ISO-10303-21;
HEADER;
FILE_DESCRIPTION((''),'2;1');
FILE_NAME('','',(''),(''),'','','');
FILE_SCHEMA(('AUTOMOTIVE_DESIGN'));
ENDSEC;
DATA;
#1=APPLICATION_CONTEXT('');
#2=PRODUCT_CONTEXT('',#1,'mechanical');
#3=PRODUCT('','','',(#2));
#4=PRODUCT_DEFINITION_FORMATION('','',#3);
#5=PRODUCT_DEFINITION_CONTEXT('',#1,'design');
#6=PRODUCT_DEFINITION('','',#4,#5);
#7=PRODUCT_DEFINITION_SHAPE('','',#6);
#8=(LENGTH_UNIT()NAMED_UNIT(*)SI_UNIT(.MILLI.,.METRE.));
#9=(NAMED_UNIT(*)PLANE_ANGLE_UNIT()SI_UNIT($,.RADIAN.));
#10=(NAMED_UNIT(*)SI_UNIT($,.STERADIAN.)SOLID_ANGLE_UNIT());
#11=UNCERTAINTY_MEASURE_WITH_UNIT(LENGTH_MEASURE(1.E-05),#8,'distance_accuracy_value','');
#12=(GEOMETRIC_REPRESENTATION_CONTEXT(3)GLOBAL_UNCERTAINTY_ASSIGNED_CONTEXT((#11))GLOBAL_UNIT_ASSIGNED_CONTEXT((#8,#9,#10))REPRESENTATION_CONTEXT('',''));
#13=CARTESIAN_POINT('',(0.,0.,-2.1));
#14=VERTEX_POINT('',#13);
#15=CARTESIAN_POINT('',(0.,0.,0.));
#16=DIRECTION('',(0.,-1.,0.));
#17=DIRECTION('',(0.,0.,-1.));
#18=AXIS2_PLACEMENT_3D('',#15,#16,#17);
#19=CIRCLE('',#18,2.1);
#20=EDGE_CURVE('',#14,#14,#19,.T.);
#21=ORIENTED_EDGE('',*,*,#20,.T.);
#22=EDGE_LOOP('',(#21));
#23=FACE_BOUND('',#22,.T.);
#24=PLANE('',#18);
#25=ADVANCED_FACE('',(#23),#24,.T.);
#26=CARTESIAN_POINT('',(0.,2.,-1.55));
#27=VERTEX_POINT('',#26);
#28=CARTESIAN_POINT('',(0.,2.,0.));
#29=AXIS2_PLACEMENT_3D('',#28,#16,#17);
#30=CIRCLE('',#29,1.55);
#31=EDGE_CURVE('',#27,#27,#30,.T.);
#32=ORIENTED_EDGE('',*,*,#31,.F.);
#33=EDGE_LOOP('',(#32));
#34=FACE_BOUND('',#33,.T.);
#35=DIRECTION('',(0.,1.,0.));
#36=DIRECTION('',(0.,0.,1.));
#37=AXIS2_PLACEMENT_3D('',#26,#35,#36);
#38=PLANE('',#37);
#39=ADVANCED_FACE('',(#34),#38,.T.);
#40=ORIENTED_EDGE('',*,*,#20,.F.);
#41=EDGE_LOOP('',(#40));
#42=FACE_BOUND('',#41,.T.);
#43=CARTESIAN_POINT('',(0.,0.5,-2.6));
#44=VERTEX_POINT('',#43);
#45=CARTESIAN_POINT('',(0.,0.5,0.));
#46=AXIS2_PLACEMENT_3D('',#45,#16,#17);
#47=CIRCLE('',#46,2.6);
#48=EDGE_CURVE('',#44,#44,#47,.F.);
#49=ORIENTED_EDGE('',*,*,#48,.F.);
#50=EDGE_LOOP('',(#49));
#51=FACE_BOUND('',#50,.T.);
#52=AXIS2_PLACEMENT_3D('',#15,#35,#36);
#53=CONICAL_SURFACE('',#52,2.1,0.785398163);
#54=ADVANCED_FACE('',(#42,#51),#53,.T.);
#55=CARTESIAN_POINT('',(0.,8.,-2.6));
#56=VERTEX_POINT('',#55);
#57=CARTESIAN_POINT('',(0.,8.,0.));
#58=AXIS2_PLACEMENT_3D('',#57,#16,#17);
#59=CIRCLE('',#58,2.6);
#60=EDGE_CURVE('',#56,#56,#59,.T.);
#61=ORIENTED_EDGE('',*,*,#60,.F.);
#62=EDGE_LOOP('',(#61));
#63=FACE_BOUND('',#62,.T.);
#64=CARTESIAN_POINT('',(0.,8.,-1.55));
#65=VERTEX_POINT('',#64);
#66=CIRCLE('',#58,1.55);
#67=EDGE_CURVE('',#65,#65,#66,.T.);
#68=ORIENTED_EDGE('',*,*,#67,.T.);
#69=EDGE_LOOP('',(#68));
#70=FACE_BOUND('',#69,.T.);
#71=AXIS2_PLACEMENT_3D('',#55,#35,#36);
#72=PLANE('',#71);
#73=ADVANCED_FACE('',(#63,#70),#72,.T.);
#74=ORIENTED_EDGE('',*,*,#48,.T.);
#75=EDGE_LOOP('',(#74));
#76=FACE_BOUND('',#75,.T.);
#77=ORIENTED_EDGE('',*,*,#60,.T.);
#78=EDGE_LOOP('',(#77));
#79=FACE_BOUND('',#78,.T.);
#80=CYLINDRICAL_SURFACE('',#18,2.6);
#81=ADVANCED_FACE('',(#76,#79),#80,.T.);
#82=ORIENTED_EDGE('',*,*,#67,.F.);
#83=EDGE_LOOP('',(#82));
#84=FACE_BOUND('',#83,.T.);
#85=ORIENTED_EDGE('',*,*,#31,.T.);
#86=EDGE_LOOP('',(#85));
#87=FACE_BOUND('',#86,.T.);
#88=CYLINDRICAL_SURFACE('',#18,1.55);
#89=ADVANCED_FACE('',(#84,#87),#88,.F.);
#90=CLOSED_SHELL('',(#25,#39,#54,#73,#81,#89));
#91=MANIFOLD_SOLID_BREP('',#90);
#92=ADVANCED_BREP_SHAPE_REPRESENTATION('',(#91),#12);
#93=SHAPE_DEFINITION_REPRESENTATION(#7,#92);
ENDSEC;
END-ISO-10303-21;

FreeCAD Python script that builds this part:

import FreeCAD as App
import Part
import Sketcher

V = App.Vector
Q = App.Units.Quantity


def edges_at(feature, points):
    """Names of the edges that pass closest to the given points."""
    edges = feature.Shape.Edges
    near = lambda p: min(range(len(edges)), key=lambda i: edges[i].distToShape(Part.Vertex(*p))[0])
    return sorted({f"Edge{near(p) + 1}" for p in points})


def add_polygon(sketch, points):
    """Adds a closed chain of lines whose ends are joined by coincident constraints."""
    first, n = sketch.GeometryCount, len(points)
    for a, b in zip(points, points[1:] + points[:1]):
        sketch.addGeometry(Part.LineSegment(App.Vector(*a, 0), App.Vector(*b, 0)), False)
    for i in range(n):
        sketch.addConstraint(Sketcher.Constraint("Coincident", first + i, 2, first + (i + 1) % n, 1))

doc = App.newDocument("Part")
params = doc.addObject("Spreadsheet::Sheet", "Params")
for row, (alias, value) in enumerate([
    ("sketch1_width", "8 mm"),
    ("sketch1_width2", "6 mm"),
    ("sketch1_height", "2.6 mm"),
    ("sketch1_height2", "1.05 mm"),
    ("revolution_angle", "360 deg"),
    ("chamfer_size", "0.5 mm"),
], start=1):
    params.set(f"A{row}", alias)
    params.set(f"B{row}", "=" + value)
    params.setAlias(f"B{row}", alias)

body = doc.addObject("PartDesign::Body", "Body")

# Sketch on YZ plane
sketch1 = body.newObject("Sketcher::SketchObject", "Sketch")
sketch1.AttachmentSupport = (doc.getObject("YZ_Plane"), [""])
sketch1.MapMode = "FlatFace"
add_polygon(sketch1, [(0, 0), (0, -2.6), (8, -2.6), (8, -1.6), (2, -1.6), (2, 0)])  # lines 0-5
sketch1.addConstraint(Sketcher.Constraint("Vertical", 0))
sketch1.addConstraint(Sketcher.Constraint("Horizontal", 1))
sketch1.addConstraint(Sketcher.Constraint("Vertical", 2))
sketch1.addConstraint(Sketcher.Constraint("Horizontal", 3))
sketch1.addConstraint(Sketcher.Constraint("Vertical", 4))
sketch1.addConstraint(Sketcher.Constraint("Horizontal", 5))
sketch1.addConstraint(Sketcher.Constraint("Coincident", 5, 2, -1, 1))
sketch1.addConstraint(Sketcher.Constraint("DistanceX", 1, 1, 1, 2, Q("8 mm")))
sketch1.addConstraint(Sketcher.Constraint("DistanceX", 3, 2, 3, 1, Q("6 mm")))
sketch1.addConstraint(Sketcher.Constraint("DistanceY", 0, 2, 0, 1, Q("2.6 mm")))
sketch1.addConstraint(Sketcher.Constraint("DistanceY", 2, 1, 2, 2, Q("1.05 mm")))
sketch1.setExpression("Constraints[13]", "Params.sketch1_width")
sketch1.setExpression("Constraints[14]", "Params.sketch1_width2")
sketch1.setExpression("Constraints[15]", "Params.sketch1_height")
sketch1.setExpression("Constraints[16]", "Params.sketch1_height2")
revolution = body.newObject("PartDesign::Revolution", "Revolution")
revolution.Profile = sketch1
revolution.ReferenceAxis = (sketch1, ["H_Axis"])
revolution.setExpression("Angle", "Params.revolution_angle")
doc.recompute()

chamfer = body.newObject("PartDesign::Chamfer", "Chamfer")
chamfer.Base = (revolution, edges_at(revolution, [(0, 0, 2.6)]))
chamfer.setExpression("Size", "Params.chamfer_size")

doc.recompute()
